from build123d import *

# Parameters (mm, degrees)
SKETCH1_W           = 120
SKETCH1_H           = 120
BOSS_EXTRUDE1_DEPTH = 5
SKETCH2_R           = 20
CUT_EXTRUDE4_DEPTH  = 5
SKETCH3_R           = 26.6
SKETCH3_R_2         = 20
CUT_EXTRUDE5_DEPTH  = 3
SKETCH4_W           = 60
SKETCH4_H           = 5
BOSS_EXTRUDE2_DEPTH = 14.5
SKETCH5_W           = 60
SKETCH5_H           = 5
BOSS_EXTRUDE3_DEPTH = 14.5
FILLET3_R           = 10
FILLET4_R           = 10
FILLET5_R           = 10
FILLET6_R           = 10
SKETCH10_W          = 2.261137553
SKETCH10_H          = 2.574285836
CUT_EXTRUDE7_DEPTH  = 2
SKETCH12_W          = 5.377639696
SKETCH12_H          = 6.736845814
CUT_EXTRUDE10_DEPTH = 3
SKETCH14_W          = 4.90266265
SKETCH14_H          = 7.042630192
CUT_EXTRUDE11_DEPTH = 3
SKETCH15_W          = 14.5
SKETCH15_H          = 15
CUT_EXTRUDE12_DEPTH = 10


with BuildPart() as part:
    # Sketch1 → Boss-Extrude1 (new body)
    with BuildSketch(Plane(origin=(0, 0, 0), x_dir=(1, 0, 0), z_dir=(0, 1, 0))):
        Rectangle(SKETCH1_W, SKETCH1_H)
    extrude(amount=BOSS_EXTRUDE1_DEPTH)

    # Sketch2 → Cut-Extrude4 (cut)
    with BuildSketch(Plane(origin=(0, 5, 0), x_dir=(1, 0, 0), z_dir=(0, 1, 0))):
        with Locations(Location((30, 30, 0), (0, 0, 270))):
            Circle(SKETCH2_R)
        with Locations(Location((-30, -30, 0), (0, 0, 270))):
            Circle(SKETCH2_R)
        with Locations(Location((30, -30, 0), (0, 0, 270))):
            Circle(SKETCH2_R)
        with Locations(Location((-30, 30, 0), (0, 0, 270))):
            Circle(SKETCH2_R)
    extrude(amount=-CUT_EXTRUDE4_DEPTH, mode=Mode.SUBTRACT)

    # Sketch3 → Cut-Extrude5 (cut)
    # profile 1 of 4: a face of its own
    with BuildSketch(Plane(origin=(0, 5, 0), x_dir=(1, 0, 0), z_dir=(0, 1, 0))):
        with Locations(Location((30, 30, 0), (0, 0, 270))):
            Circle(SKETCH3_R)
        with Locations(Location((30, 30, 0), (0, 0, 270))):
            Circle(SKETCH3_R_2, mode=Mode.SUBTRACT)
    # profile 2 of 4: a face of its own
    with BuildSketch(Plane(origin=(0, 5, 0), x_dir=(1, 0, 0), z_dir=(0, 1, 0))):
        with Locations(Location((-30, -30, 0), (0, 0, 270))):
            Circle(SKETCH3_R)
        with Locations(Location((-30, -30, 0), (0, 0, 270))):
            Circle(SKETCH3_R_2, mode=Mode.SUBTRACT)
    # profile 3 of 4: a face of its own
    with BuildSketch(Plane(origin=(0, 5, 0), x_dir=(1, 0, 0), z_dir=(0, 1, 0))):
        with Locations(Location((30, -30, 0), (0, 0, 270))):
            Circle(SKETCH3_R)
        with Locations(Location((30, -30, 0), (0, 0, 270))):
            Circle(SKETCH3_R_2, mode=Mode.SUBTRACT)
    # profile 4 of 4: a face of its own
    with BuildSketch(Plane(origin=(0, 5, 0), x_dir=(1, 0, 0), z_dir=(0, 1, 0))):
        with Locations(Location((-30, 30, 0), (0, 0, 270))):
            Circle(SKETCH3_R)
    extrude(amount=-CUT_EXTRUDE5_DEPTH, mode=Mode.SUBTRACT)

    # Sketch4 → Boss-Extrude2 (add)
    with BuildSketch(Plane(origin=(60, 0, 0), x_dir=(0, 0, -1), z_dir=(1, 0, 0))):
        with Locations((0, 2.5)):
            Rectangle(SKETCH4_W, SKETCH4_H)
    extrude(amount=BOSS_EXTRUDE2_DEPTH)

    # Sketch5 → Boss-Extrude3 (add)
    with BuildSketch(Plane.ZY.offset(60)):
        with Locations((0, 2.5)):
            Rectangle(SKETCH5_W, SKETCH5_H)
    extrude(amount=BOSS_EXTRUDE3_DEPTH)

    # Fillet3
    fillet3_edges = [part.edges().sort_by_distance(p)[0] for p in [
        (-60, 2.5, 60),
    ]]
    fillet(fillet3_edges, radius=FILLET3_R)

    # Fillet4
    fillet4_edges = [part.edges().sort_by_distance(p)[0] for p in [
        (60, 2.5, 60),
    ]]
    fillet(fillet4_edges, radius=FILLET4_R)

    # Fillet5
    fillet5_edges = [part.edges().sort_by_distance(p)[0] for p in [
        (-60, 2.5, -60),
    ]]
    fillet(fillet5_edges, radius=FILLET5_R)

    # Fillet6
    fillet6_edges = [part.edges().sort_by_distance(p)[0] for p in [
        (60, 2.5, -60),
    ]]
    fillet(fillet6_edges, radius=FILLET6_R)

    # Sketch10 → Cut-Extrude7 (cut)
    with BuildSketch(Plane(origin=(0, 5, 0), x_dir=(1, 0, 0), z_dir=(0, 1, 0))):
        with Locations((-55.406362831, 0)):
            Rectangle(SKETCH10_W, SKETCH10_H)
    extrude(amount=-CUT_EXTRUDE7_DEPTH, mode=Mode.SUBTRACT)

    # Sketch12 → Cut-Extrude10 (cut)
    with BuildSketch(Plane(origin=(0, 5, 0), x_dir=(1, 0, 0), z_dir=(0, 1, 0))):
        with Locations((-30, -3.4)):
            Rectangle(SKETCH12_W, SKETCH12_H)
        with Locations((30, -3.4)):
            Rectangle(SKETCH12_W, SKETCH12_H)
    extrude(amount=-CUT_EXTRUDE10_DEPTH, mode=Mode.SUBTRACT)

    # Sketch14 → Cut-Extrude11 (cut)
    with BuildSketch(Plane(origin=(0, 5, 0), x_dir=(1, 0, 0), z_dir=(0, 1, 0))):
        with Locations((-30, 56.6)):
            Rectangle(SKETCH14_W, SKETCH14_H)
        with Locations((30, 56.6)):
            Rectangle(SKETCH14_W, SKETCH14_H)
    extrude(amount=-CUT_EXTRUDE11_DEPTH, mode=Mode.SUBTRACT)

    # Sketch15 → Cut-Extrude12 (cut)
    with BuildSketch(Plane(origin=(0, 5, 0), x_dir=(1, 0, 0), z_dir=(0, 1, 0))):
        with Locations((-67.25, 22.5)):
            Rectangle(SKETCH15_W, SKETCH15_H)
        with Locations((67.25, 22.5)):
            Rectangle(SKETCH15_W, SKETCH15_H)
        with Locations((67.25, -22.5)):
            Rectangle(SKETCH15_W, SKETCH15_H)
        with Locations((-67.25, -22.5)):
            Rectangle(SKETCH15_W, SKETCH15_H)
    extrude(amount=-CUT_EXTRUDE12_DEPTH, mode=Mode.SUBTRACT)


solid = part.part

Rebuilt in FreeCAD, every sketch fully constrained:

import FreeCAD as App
import Part
import Sketcher
from FreeCAD import Vector
Q = App.Units.Quantity


def edges_at(feature, points):
    """Names of the edges that pass closest to the given points."""
    edges = feature.Shape.Edges
    near = lambda p: min(range(len(edges)), key=lambda i: edges[i].distToShape(Part.Vertex(*p))[0])
    return sorted({f"Edge{near(p) + 1}" for p in points})

doc = App.newDocument("Part")
body = doc.addObject("PartDesign::Body", "Body")

sketch1 = body.newObject("Sketcher::SketchObject", "Sketch")
sketch1.AttachmentSupport = (doc.getObject("XZ_Plane"), [""])
sketch1.MapMode = "FlatFace"
sketch1.addGeometry([
    Part.LineSegment(Vector(-60, -60, 0), Vector(-60, 60, 0)),
    Part.LineSegment(Vector(-60, 60, 0), Vector(60, 60, 0)),
    Part.LineSegment(Vector(60, 60, 0), Vector(60, -60, 0)),
    Part.LineSegment(Vector(60, -60, 0), Vector(-60, -60, 0)),
], False)
sketch1.addConstraint([
    Sketcher.Constraint("Coincident", 0, 2, 1, 1),
    Sketcher.Constraint("Coincident", 1, 2, 2, 1),
    Sketcher.Constraint("Coincident", 2, 2, 3, 1),
    Sketcher.Constraint("Coincident", 3, 2, 0, 1),
    Sketcher.Constraint("Vertical", 0),
    Sketcher.Constraint("Horizontal", 1),
    Sketcher.Constraint("Vertical", 2),
    Sketcher.Constraint("Horizontal", 3),
    Sketcher.Constraint("Symmetric", 0, 2, 2, 2, -1, 1),
    Sketcher.Constraint("Equal", 3, 0),
    Sketcher.Constraint("DistanceX", 1, 1, 1, 2, Q("120 mm")),
])
pad1 = body.newObject("PartDesign::Pad", "Pad")
pad1.Profile = sketch1
pad1.Length = 5
pad1.Reversed = True

sketch2 = body.newObject("Sketcher::SketchObject", "Sketch001")
sketch2.AttachmentSupport = (doc.getObject("XZ_Plane"), [""])
sketch2.MapMode = "FlatFace"
sketch2.AttachmentOffset = App.Placement(Vector(0, 0, -5), App.Rotation())
sketch2.addGeometry([
    Part.Circle(Vector(30, -30, 0), Vector(0, 0, 1), 20),
    Part.Circle(Vector(-30, 30, 0), Vector(0, 0, 1), 20),
    Part.Circle(Vector(30, 30, 0), Vector(0, 0, 1), 20),
    Part.Circle(Vector(-30, -30, 0), Vector(0, 0, 1), 20),
], False)
sketch2.addConstraint([
    Sketcher.Constraint("Equal", 0, 1),
    Sketcher.Constraint("Equal", 1, 2),
    Sketcher.Constraint("Equal", 2, 3),
    Sketcher.Constraint("Symmetric", 0, 3, 1, 3, -1, 1),
    Sketcher.Constraint("Symmetric", 2, 3, 3, 3, -1, 1),
    Sketcher.Constraint("Symmetric", 1, 3, 2, 3, -2),
    Sketcher.Constraint("Diameter", 0, Q("40 mm")),
    Sketcher.Constraint("DistanceX", -1, 1, 0, 3, Q("30 mm")),
    Sketcher.Constraint("DistanceY", 0, 3, -1, 1, Q("30 mm")),
])
pocket1 = body.newObject("PartDesign::Pocket", "Pocket")
pocket1.Profile = sketch2
pocket1.Length = 5
pocket1.Reversed = True

sketch3 = body.newObject("Sketcher::SketchObject", "Sketch002")
sketch3.AttachmentSupport = (doc.getObject("XZ_Plane"), [""])
sketch3.MapMode = "FlatFace"
sketch3.AttachmentOffset = App.Placement(Vector(0, 0, -5), App.Rotation())
sketch3.addGeometry([
    Part.Circle(Vector(30, -30, 0), Vector(0, 0, 1), 26.6),
    Part.Circle(Vector(30, -30, 0), Vector(0, 0, 1), 20),
    Part.Circle(Vector(-30, 30, 0), Vector(0, 0, 1), 26.6),
    Part.Circle(Vector(-30, 30, 0), Vector(0, 0, 1), 20),
    Part.Circle(Vector(30, 30, 0), Vector(0, 0, 1), 26.6),
    Part.Circle(Vector(30, 30, 0), Vector(0, 0, 1), 20),
    Part.Circle(Vector(-30, -30, 0), Vector(0, 0, 1), 26.6),
], False)
sketch3.addConstraint([
    Sketcher.Constraint("Coincident", 1, 3, 0, 3),
    Sketcher.Constraint("Coincident", 3, 3, 2, 3),
    Sketcher.Constraint("Coincident", 5, 3, 4, 3),
    Sketcher.Constraint("Equal", 0, 2),
    Sketcher.Constraint("Equal", 1, 3),
    Sketcher.Constraint("Equal", 2, 4),
    Sketcher.Constraint("Equal", 3, 5),
    Sketcher.Constraint("Equal", 4, 6),
    Sketcher.Constraint("Symmetric", 0, 3, 2, 3, -1, 1),
    Sketcher.Constraint("Symmetric", 4, 3, 6, 3, -1, 1),
    Sketcher.Constraint("Symmetric", 2, 3, 4, 3, -2),
    Sketcher.Constraint("Diameter", 1, Q("40 mm")),
    Sketcher.Constraint("Diameter", 0, Q("53.2 mm")),
    Sketcher.Constraint("DistanceX", -1, 1, 0, 3, Q("30 mm")),
    Sketcher.Constraint("DistanceY", 0, 3, -1, 1, Q("30 mm")),
])
pocket2 = body.newObject("PartDesign::Pocket", "Pocket001")
pocket2.Profile = sketch3
pocket2.Length = 3
pocket2.Reversed = True

sketch4 = body.newObject("Sketcher::SketchObject", "Sketch003")
sketch4.AttachmentSupport = (doc.getObject("YZ_Plane"), [""])
sketch4.MapMode = "FlatFace"
sketch4.AttachmentOffset = App.Placement(Vector(0, 0, 60), App.Rotation())
sketch4.addGeometry([
    Part.LineSegment(Vector(5, 30, 0), Vector(0, 30, 0)),
    Part.LineSegment(Vector(0, 30, 0), Vector(0, -30, 0)),
    Part.LineSegment(Vector(0, -30, 0), Vector(5, -30, 0)),
    Part.LineSegment(Vector(5, -30, 0), Vector(5, 30, 0)),
], False)
sketch4.addConstraint([
    Sketcher.Constraint("Coincident", 0, 2, 1, 1),
    Sketcher.Constraint("Coincident", 1, 2, 2, 1),
    Sketcher.Constraint("Coincident", 2, 2, 3, 1),
    Sketcher.Constraint("Coincident", 3, 2, 0, 1),
    Sketcher.Constraint("Horizontal", 0),
    Sketcher.Constraint("Vertical", 1),
    Sketcher.Constraint("Horizontal", 2),
    Sketcher.Constraint("Vertical", 3),
    Sketcher.Constraint("Symmetric", 0, 2, 1, 2, -1, 1),
    Sketcher.Constraint("DistanceX", 0, 2, 0, 1, Q("5 mm")),
    Sketcher.Constraint("DistanceY", 1, 2, 1, 1, Q("60 mm")),
])
pad2 = body.newObject("PartDesign::Pad", "Pad001")
pad2.Profile = sketch4
pad2.Length = 14.5

sketch5 = body.newObject("Sketcher::SketchObject", "Sketch004")
sketch5.AttachmentSupport = (doc.getObject("YZ_Plane"), [""])
sketch5.MapMode = "FlatFace"
sketch5.AttachmentOffset = App.Placement(Vector(0, 0, -60), App.Rotation())
sketch5.addGeometry([
    Part.LineSegment(Vector(5, -30, 0), Vector(0, -30, 0)),
    Part.LineSegment(Vector(0, -30, 0), Vector(0, 30, 0)),
    Part.LineSegment(Vector(0, 30, 0), Vector(5, 30, 0)),
    Part.LineSegment(Vector(5, 30, 0), Vector(5, -30, 0)),
], False)
sketch5.addConstraint([
    Sketcher.Constraint("Coincident", 0, 2, 1, 1),
    Sketcher.Constraint("Coincident", 1, 2, 2, 1),
    Sketcher.Constraint("Coincident", 2, 2, 3, 1),
    Sketcher.Constraint("Coincident", 3, 2, 0, 1),
    Sketcher.Constraint("Horizontal", 0),
    Sketcher.Constraint("Vertical", 1),
    Sketcher.Constraint("Horizontal", 2),
    Sketcher.Constraint("Vertical", 3),
    Sketcher.Constraint("Symmetric", 0, 2, 1, 2, -1, 1),
    Sketcher.Constraint("DistanceX", 0, 2, 0, 1, Q("5 mm")),
    Sketcher.Constraint("DistanceY", 1, 1, 1, 2, Q("60 mm")),
])
pad3 = body.newObject("PartDesign::Pad", "Pad002")
pad3.Profile = sketch5
pad3.Length = 14.5
pad3.Reversed = True
doc.recompute()

fillet = body.newObject("PartDesign::Fillet", "Fillet")
fillet.Base = (pad3, edges_at(pad3, [(-60, 2.5, 60)]))
fillet.Radius = 10
doc.recompute()

fillet2 = body.newObject("PartDesign::Fillet", "Fillet001")
fillet2.Base = (fillet, edges_at(fillet, [(60, 2.5, 60)]))
fillet2.Radius = 10
doc.recompute()

fillet3 = body.newObject("PartDesign::Fillet", "Fillet002")
fillet3.Base = (fillet2, edges_at(fillet2, [(-60, 2.5, -60)]))
fillet3.Radius = 10
doc.recompute()

fillet4 = body.newObject("PartDesign::Fillet", "Fillet003")
fillet4.Base = (fillet3, edges_at(fillet3, [(60, 2.5, -60)]))
fillet4.Radius = 10

sketch6 = body.newObject("Sketcher::SketchObject", "Sketch005")
sketch6.AttachmentSupport = (doc.getObject("XZ_Plane"), [""])
sketch6.MapMode = "FlatFace"
sketch6.AttachmentOffset = App.Placement(Vector(0, 0, -5), App.Rotation())
sketch6.addGeometry([
    Part.LineSegment(Vector(-56.536932, -1.287143, 0), Vector(-56.536932, 1.287143, 0)),
    Part.LineSegment(Vector(-56.536932, 1.287143, 0), Vector(-54.275794, 1.287143, 0)),
    Part.LineSegment(Vector(-54.275794, 1.287143, 0), Vector(-54.275794, -1.287143, 0)),
    Part.LineSegment(Vector(-54.275794, -1.287143, 0), Vector(-56.536932, -1.287143, 0)),
], False)
sketch6.addConstraint([
    Sketcher.Constraint("Coincident", 0, 2, 1, 1),
    Sketcher.Constraint("Coincident", 1, 2, 2, 1),
    Sketcher.Constraint("Coincident", 2, 2, 3, 1),
    Sketcher.Constraint("Coincident", 3, 2, 0, 1),
    Sketcher.Constraint("Vertical", 0),
    Sketcher.Constraint("Horizontal", 1),
    Sketcher.Constraint("Vertical", 2),
    Sketcher.Constraint("Horizontal", 3),
    Sketcher.Constraint("DistanceX", 1, 1, 1, 2, Q("2.261138 mm")),
    Sketcher.Constraint("DistanceY", 0, 1, 0, 2, Q("2.574286 mm")),
    Sketcher.Constraint("DistanceX", 0, 2, -1, 1, Q("56.536932 mm")),
    Sketcher.Constraint("DistanceY", -1, 1, 0, 2, Q("1.287143 mm")),
])
pocket3 = body.newObject("PartDesign::Pocket", "Pocket002")
pocket3.Profile = sketch6
pocket3.Length = 2
pocket3.Reversed = True

sketch7 = body.newObject("Sketcher::SketchObject", "Sketch006")
sketch7.AttachmentSupport = (doc.getObject("XZ_Plane"), [""])
sketch7.MapMode = "FlatFace"
sketch7.AttachmentOffset = App.Placement(Vector(0, 0, -5), App.Rotation())
sketch7.addGeometry([
    Part.LineSegment(Vector(-32.68882, 0.031577, 0), Vector(-32.68882, 6.768423, 0)),
    Part.LineSegment(Vector(-32.68882, 6.768423, 0), Vector(-27.31118, 6.768423, 0)),
    Part.LineSegment(Vector(-27.31118, 6.768423, 0), Vector(-27.31118, 0.031577, 0)),
    Part.LineSegment(Vector(-27.31118, 0.031577, 0), Vector(-32.68882, 0.031577, 0)),
    Part.LineSegment(Vector(27.31118, 0.031577, 0), Vector(27.31118, 6.768423, 0)),
    Part.LineSegment(Vector(27.31118, 6.768423, 0), Vector(32.68882, 6.768423, 0)),
    Part.LineSegment(Vector(32.68882, 6.768423, 0), Vector(32.68882, 0.031577, 0)),
    Part.LineSegment(Vector(32.68882, 0.031577, 0), Vector(27.31118, 0.031577, 0)),
], False)
sketch7.addConstraint([
    Sketcher.Constraint("Coincident", 0, 2, 1, 1),
    Sketcher.Constraint("Coincident", 1, 2, 2, 1),
    Sketcher.Constraint("Coincident", 2, 2, 3, 1),
    Sketcher.Constraint("Coincident", 3, 2, 0, 1),
    Sketcher.Constraint("Coincident", 4, 2, 5, 1),
    Sketcher.Constraint("Coincident", 5, 2, 6, 1),
    Sketcher.Constraint("Coincident", 6, 2, 7, 1),
    Sketcher.Constraint("Coincident", 7, 2, 4, 1),
    Sketcher.Constraint("Vertical", 0),
    Sketcher.Constraint("Horizontal", 1),
    Sketcher.Constraint("Vertical", 2),
    Sketcher.Constraint("Horizontal", 3),
    Sketcher.Constraint("Vertical", 4),
    Sketcher.Constraint("Horizontal", 5),
    Sketcher.Constraint("Vertical", 6),
    Sketcher.Constraint("Horizontal", 7),
    Sketcher.Constraint("Symmetric", 1, 2, 4, 2, -2),
    Sketcher.Constraint("Symmetric", 3, 2, 6, 2, -2),
    Sketcher.Constraint("DistanceX", 0, 2, 4, 2, Q("60 mm")),
    Sketcher.Constraint("DistanceX", 1, 1, 1, 2, Q("5.37764 mm")),
    Sketcher.Constraint("DistanceY", 0, 1, 0, 2, Q("6.736846 mm")),
    Sketcher.Constraint("DistanceY", -1, 1, 0, 2, Q("6.768423 mm")),
])
pocket4 = body.newObject("PartDesign::Pocket", "Pocket003")
pocket4.Profile = sketch7
pocket4.Length = 3
pocket4.Reversed = True

sketch8 = body.newObject("Sketcher::SketchObject", "Sketch007")
sketch8.AttachmentSupport = (doc.getObject("XZ_Plane"), [""])
sketch8.MapMode = "FlatFace"
sketch8.AttachmentOffset = App.Placement(Vector(0, 0, -5), App.Rotation())
sketch8.addGeometry([
    Part.LineSegment(Vector(-32.451331, -60.121315, 0), Vector(-32.451331, -53.078685, 0)),
    Part.LineSegment(Vector(-32.451331, -53.078685, 0), Vector(-27.548669, -53.078685, 0)),
    Part.LineSegment(Vector(-27.548669, -53.078685, 0), Vector(-27.548669, -60.121315, 0)),
    Part.LineSegment(Vector(-27.548669, -60.121315, 0), Vector(-32.451331, -60.121315, 0)),
    Part.LineSegment(Vector(27.548669, -60.121315, 0), Vector(27.548669, -53.078685, 0)),
    Part.LineSegment(Vector(27.548669, -53.078685, 0), Vector(32.451331, -53.078685, 0)),
    Part.LineSegment(Vector(32.451331, -53.078685, 0), Vector(32.451331, -60.121315, 0)),
    Part.LineSegment(Vector(32.451331, -60.121315, 0), Vector(27.548669, -60.121315, 0)),
], False)
sketch8.addConstraint([
    Sketcher.Constraint("Coincident", 0, 2, 1, 1),
    Sketcher.Constraint("Coincident", 1, 2, 2, 1),
    Sketcher.Constraint("Coincident", 2, 2, 3, 1),
    Sketcher.Constraint("Coincident", 3, 2, 0, 1),
    Sketcher.Constraint("Coincident", 4, 2, 5, 1),
    Sketcher.Constraint("Coincident", 5, 2, 6, 1),
    Sketcher.Constraint("Coincident", 6, 2, 7, 1),
    Sketcher.Constraint("Coincident", 7, 2, 4, 1),
    Sketcher.Constraint("Vertical", 0),
    Sketcher.Constraint("Horizontal", 1),
    Sketcher.Constraint("Vertical", 2),
    Sketcher.Constraint("Horizontal", 3),
    Sketcher.Constraint("Vertical", 4),
    Sketcher.Constraint("Horizontal", 5),
    Sketcher.Constraint("Vertical", 6),
    Sketcher.Constraint("Horizontal", 7),
    Sketcher.Constraint("Symmetric", 1, 2, 4, 2, -2),
    Sketcher.Constraint("Symmetric", 3, 2, 6, 2, -2),
    Sketcher.Constraint("DistanceX", 0, 2, 4, 2, Q("60 mm")),
    Sketcher.Constraint("DistanceY", 0, 1, 0, 2, Q("7.04263 mm")),
    Sketcher.Constraint("DistanceX", 1, 1, 1, 2, Q("4.902663 mm")),
    Sketcher.Constraint("DistanceY", 0, 2, -1, 1, Q("53.078685 mm")),
])
pocket5 = body.newObject("PartDesign::Pocket", "Pocket004")
pocket5.Profile = sketch8
pocket5.Length = 3
pocket5.Reversed = True

sketch9 = body.newObject("Sketcher::SketchObject", "Sketch008")
sketch9.AttachmentSupport = (doc.getObject("XZ_Plane"), [""])
sketch9.MapMode = "FlatFace"
sketch9.AttachmentOffset = App.Placement(Vector(0, 0, -5), App.Rotation())
sketch9.addGeometry([
    Part.LineSegment(Vector(-74.5, -30, 0), Vector(-74.5, -15, 0)),
    Part.LineSegment(Vector(-74.5, -15, 0), Vector(-60, -15, 0)),
    Part.LineSegment(Vector(-60, -15, 0), Vector(-60, -30, 0)),
    Part.LineSegment(Vector(-60, -30, 0), Vector(-74.5, -30, 0)),
    Part.LineSegment(Vector(60, -30, 0), Vector(60, -15, 0)),
    Part.LineSegment(Vector(60, -15, 0), Vector(74.5, -15, 0)),
    Part.LineSegment(Vector(74.5, -15, 0), Vector(74.5, -30, 0)),
    Part.LineSegment(Vector(74.5, -30, 0), Vector(60, -30, 0)),
    Part.LineSegment(Vector(60, 15, 0), Vector(60, 30, 0)),
    Part.LineSegment(Vector(60, 30, 0), Vector(74.5, 30, 0)),
    Part.LineSegment(Vector(74.5, 30, 0), Vector(74.5, 15, 0)),
    Part.LineSegment(Vector(74.5, 15, 0), Vector(60, 15, 0)),
    Part.LineSegment(Vector(-74.5, 15, 0), Vector(-74.5, 30, 0)),
    Part.LineSegment(Vector(-74.5, 30, 0), Vector(-60, 30, 0)),
    Part.LineSegment(Vector(-60, 30, 0), Vector(-60, 15, 0)),
    Part.LineSegment(Vector(-60, 15, 0), Vector(-74.5, 15, 0)),
], False)
sketch9.addConstraint([
    Sketcher.Constraint("Coincident", 0, 2, 1, 1),
    Sketcher.Constraint("Coincident", 1, 2, 2, 1),
    Sketcher.Constraint("Coincident", 2, 2, 3, 1),
    Sketcher.Constraint("Coincident", 3, 2, 0, 1),
    Sketcher.Constraint("Coincident", 4, 2, 5, 1),
    Sketcher.Constraint("Coincident", 5, 2, 6, 1),
    Sketcher.Constraint("Coincident", 6, 2, 7, 1),
    Sketcher.Constraint("Coincident", 7, 2, 4, 1),
    Sketcher.Constraint("Coincident", 8, 2, 9, 1),
    Sketcher.Constraint("Coincident", 9, 2, 10, 1),
    Sketcher.Constraint("Coincident", 10, 2, 11, 1),
    Sketcher.Constraint("Coincident", 11, 2, 8, 1),
    Sketcher.Constraint("Coincident", 12, 2, 13, 1),
    Sketcher.Constraint("Coincident", 13, 2, 14, 1),
    Sketcher.Constraint("Coincident", 14, 2, 15, 1),
    Sketcher.Constraint("Coincident", 15, 2, 12, 1),
    Sketcher.Constraint("Vertical", 0),
    Sketcher.Constraint("Horizontal", 1),
    Sketcher.Constraint("Vertical", 2),
    Sketcher.Constraint("Horizontal", 3),
    Sketcher.Constraint("Vertical", 4),
    Sketcher.Constraint("Horizontal", 5),
    Sketcher.Constraint("Vertical", 6),
    Sketcher.Constraint("Horizontal", 7),
    Sketcher.Constraint("Vertical", 8),
    Sketcher.Constraint("Horizontal", 9),
    Sketcher.Constraint("Vertical", 10),
    Sketcher.Constraint("Horizontal", 11),
    Sketcher.Constraint("Vertical", 12),
    Sketcher.Constraint("Horizontal", 13),
    Sketcher.Constraint("Vertical", 14),
    Sketcher.Constraint("Horizontal", 15),
    Sketcher.Constraint("Symmetric", 2, 2, 8, 2, -1, 1),
    Sketcher.Constraint("Symmetric", 0, 2, 10, 2, -1, 1),
    Sketcher.Constraint("Symmetric", 6, 2, 12, 2, -1, 1),
    Sketcher.Constraint("Symmetric", 4, 2, 14, 2, -1, 1),
    Sketcher.Constraint("Symmetric", 1, 2, 4, 2, -2),
    Sketcher.Constraint("Symmetric", 3, 2, 6, 2, -2),
    Sketcher.Constraint("DistanceY", 0, 1, 0, 2, Q("15 mm")),
    Sketcher.Constraint("DistanceX", 1, 1, 1, 2, Q("14.5 mm")),
    Sketcher.Constraint("DistanceY", 0, 2, -1, 1, Q("15 mm")),
    Sketcher.Constraint("DistanceX", 1, 2, -1, 1, Q("60 mm")),
])
pocket6 = body.newObject("PartDesign::Pocket", "Pocket005")
pocket6.Profile = sketch9
pocket6.Length = 10
pocket6.Reversed = True

doc.recompute()
